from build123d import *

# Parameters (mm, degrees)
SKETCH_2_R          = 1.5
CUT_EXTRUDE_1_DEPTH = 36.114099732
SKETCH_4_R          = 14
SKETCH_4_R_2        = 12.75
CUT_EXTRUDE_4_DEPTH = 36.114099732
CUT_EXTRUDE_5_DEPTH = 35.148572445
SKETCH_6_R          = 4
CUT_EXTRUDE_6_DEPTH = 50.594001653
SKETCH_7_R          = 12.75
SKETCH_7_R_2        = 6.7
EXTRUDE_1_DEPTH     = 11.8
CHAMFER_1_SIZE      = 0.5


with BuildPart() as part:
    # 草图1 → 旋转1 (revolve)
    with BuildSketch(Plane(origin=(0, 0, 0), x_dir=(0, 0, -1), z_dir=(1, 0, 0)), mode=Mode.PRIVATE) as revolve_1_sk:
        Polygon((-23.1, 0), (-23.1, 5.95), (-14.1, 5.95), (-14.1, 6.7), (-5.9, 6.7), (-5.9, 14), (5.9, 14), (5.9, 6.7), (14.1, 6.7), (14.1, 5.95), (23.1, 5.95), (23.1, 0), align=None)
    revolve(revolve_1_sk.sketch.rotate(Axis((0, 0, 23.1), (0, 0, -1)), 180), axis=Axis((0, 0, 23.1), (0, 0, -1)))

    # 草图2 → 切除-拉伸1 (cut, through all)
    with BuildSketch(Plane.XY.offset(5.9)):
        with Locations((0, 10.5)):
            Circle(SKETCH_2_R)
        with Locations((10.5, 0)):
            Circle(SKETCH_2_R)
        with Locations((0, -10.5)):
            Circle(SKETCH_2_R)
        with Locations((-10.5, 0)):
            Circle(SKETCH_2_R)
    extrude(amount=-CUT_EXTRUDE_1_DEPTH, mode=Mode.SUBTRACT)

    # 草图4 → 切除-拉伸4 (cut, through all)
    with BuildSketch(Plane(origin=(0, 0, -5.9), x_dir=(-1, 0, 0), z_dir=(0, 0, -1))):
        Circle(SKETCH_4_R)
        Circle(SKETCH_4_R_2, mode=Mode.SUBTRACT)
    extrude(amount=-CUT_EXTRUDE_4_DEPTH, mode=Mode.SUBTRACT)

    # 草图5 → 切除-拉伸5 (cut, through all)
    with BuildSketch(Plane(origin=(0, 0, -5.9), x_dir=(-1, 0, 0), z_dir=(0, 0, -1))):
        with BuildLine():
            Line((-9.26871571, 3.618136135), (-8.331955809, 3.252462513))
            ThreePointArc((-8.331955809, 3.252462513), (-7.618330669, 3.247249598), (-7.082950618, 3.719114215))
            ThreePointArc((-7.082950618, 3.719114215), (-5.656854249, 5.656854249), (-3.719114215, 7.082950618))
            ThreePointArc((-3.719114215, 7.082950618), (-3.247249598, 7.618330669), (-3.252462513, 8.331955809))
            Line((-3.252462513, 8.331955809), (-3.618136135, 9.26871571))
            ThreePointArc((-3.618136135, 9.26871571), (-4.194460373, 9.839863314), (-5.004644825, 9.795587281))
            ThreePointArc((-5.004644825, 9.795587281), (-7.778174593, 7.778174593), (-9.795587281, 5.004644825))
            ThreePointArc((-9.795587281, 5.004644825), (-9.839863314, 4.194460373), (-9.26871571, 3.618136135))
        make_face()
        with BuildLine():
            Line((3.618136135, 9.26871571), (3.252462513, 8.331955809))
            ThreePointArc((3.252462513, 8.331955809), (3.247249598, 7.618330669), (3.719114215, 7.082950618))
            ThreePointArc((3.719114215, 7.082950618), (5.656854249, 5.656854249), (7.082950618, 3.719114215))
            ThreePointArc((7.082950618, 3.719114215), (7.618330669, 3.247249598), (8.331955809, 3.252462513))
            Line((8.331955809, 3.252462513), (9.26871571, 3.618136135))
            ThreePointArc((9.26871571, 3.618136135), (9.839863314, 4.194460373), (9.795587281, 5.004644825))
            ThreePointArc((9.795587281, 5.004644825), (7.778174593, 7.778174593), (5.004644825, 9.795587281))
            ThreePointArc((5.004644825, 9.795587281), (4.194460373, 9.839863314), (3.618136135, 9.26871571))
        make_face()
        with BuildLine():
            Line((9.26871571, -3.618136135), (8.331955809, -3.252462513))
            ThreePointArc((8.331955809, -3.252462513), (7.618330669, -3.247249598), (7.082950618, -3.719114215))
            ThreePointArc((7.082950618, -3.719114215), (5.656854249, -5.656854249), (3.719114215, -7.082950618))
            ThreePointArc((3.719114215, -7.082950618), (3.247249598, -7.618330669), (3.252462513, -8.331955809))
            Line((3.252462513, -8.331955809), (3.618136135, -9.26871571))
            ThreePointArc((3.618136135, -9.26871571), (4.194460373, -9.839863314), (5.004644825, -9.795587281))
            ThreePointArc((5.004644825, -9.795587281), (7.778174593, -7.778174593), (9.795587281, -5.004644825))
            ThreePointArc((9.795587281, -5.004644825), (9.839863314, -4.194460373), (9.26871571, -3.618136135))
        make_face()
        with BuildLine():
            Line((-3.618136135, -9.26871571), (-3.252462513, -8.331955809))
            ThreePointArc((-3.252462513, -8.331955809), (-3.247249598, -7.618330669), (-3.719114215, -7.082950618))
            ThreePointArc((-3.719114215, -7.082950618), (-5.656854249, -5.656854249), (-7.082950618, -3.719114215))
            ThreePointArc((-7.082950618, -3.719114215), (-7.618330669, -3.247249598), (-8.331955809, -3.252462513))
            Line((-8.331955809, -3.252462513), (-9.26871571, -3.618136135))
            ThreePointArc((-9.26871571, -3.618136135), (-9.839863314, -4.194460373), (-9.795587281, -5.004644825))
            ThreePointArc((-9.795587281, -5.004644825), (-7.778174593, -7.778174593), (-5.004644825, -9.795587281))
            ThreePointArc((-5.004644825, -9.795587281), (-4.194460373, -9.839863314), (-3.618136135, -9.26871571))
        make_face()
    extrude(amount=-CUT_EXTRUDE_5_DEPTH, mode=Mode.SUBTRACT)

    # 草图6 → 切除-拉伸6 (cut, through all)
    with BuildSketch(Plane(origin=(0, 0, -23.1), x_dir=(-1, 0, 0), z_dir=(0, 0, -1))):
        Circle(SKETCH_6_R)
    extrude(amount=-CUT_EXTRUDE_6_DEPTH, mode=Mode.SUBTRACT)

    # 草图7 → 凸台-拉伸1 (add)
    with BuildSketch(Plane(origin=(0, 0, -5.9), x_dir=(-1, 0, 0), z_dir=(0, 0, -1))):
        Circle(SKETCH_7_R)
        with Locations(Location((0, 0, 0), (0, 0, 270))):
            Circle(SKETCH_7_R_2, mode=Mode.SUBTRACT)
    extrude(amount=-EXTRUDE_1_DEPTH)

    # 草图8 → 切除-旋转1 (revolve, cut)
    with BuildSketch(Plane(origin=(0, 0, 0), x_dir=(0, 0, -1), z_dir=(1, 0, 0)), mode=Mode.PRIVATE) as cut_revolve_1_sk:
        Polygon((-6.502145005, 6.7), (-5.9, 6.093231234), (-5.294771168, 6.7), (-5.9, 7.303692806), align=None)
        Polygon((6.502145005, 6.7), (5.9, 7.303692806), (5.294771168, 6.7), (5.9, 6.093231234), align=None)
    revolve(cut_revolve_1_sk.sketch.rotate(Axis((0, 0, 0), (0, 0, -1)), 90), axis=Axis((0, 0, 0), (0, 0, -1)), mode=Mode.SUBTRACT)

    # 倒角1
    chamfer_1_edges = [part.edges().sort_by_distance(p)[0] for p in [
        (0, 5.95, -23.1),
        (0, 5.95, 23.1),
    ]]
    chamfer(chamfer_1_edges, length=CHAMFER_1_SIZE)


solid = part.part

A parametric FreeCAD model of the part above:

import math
import FreeCAD as App
import Part
import Sketcher
from FreeCAD import Vector
Q = App.Units.Quantity


def edges_at(feature, points):
    """Names of the edges that pass closest to the given points."""
    edges = feature.Shape.Edges
    near = lambda p: min(range(len(edges)), key=lambda i: edges[i].distToShape(Part.Vertex(*p))[0])
    return sorted({f"Edge{near(p) + 1}" for p in points})

doc = App.newDocument("Part")
body = doc.addObject("PartDesign::Body", "Body")

sketch1 = doc.addObject("Sketcher::SketchObject", "Sketch")
body.addObject(sketch1)
sketch1.AttachmentSupport = (doc.YZ_Plane, [""])
sketch1.MapMode = "FlatFace"
sketch1.addGeometry(Part.LineSegment(Vector(6, 23.1, 0), Vector(0, 23.1, 0)), False)
sketch1.addGeometry(Part.LineSegment(Vector(0, 23.1, 0), Vector(0, -23.1, 0)), False)
sketch1.addGeometry(Part.LineSegment(Vector(0, -23.1, 0), Vector(6, -23.1, 0)), False)
sketch1.addGeometry(Part.LineSegment(Vector(6, -23.1, 0), Vector(6, -14.1, 0)), False)
sketch1.addGeometry(Part.LineSegment(Vector(6, -14.1, 0), Vector(6.7, -14.1, 0)), False)
sketch1.addGeometry(Part.LineSegment(Vector(6.7, -14.1, 0), Vector(6.7, -5.9, 0)), False)
sketch1.addGeometry(Part.LineSegment(Vector(6.7, -5.9, 0), Vector(14, -5.9, 0)), False)
sketch1.addGeometry(Part.LineSegment(Vector(14, -5.9, 0), Vector(14, 5.9, 0)), False)
sketch1.addGeometry(Part.LineSegment(Vector(14, 5.9, 0), Vector(6.7, 5.9, 0)), False)
sketch1.addGeometry(Part.LineSegment(Vector(6.7, 5.9, 0), Vector(6.7, 14.1, 0)), False)
sketch1.addGeometry(Part.LineSegment(Vector(6.7, 14.1, 0), Vector(6, 14.1, 0)), False)
sketch1.addGeometry(Part.LineSegment(Vector(6, 14.1, 0), Vector(6, 23.1, 0)), False)
sketch1.addConstraint(Sketcher.Constraint("Coincident", 0, 2, 1, 1))
sketch1.addConstraint(Sketcher.Constraint("Coincident", 1, 2, 2, 1))
sketch1.addConstraint(Sketcher.Constraint("Coincident", 2, 2, 3, 1))
sketch1.addConstraint(Sketcher.Constraint("Coincident", 3, 2, 4, 1))
sketch1.addConstraint(Sketcher.Constraint("Coincident", 4, 2, 5, 1))
sketch1.addConstraint(Sketcher.Constraint("Coincident", 5, 2, 6, 1))
sketch1.addConstraint(Sketcher.Constraint("Coincident", 6, 2, 7, 1))
sketch1.addConstraint(Sketcher.Constraint("Coincident", 7, 2, 8, 1))
sketch1.addConstraint(Sketcher.Constraint("Coincident", 8, 2, 9, 1))
sketch1.addConstraint(Sketcher.Constraint("Coincident", 9, 2, 10, 1))
sketch1.addConstraint(Sketcher.Constraint("Coincident", 10, 2, 11, 1))
sketch1.addConstraint(Sketcher.Constraint("Coincident", 11, 2, 0, 1))
sketch1.addConstraint(Sketcher.Constraint("Horizontal", 0))
sketch1.addConstraint(Sketcher.Constraint("Vertical", 1))
sketch1.addConstraint(Sketcher.Constraint("Horizontal", 2))
sketch1.addConstraint(Sketcher.Constraint("Vertical", 3))
sketch1.addConstraint(Sketcher.Constraint("Horizontal", 4))
sketch1.addConstraint(Sketcher.Constraint("Vertical", 5))
sketch1.addConstraint(Sketcher.Constraint("Horizontal", 6))
sketch1.addConstraint(Sketcher.Constraint("Vertical", 7))
sketch1.addConstraint(Sketcher.Constraint("Horizontal", 8))
sketch1.addConstraint(Sketcher.Constraint("Vertical", 9))
sketch1.addConstraint(Sketcher.Constraint("Horizontal", 10))
sketch1.addConstraint(Sketcher.Constraint("Vertical", 11))
sketch1.addConstraint(Sketcher.Constraint("Symmetric", 0, 2, 1, 2, -1, 1))
sketch1.addConstraint(Sketcher.Constraint("Symmetric", 5, 2, 8, 2, -1))
sketch1.addConstraint(Sketcher.Constraint("Symmetric", 3, 2, 10, 2, -1))
sketch1.addConstraint(Sketcher.Constraint("DistanceY", 3, 1, 3, 2, Q("9 mm")))
sketch1.addConstraint(Sketcher.Constraint("DistanceX", 6, 1, 6, 2, Q("7.3 mm")))
sketch1.addConstraint(Sketcher.Constraint("DistanceY", 1, 2, 1, 1, Q("46.2 mm")))
sketch1.addConstraint(Sketcher.Constraint("DistanceY", 5, 1, 5, 2, Q("8.2 mm")))
sketch1.addConstraint(Sketcher.Constraint("DistanceX", -1, 1, 6, 2, Q("14 mm")))
sketch1.addConstraint(Sketcher.Constraint("DistanceX", 0, 2, 0, 1, Q("5.95 mm")))
revolution = doc.addObject("PartDesign::Revolution", "Revolution")
body.addObject(revolution)
revolution.Profile = sketch1
revolution.ReferenceAxis = (sketch1, ["V_Axis"])
revolution.Angle = 360

sketch2 = doc.addObject("Sketcher::SketchObject", "Sketch001")
body.addObject(sketch2)
sketch2.AttachmentSupport = (doc.XY_Plane, [""])
sketch2.MapMode = "FlatFace"
sketch2.AttachmentOffset = App.Placement(Vector(0, 0, 5.9), App.Rotation())
sketch2.addGeometry(Part.Circle(Vector(0, 10.5, 0), Vector(0, 0, 1), 1.5), False)
sketch2.addGeometry(Part.Circle(Vector(10.5, 0, 0), Vector(0, 0, 1), 1.5), False)
sketch2.addGeometry(Part.Circle(Vector(0, -10.5, 0), Vector(0, 0, 1), 1.5), False)
sketch2.addGeometry(Part.Circle(Vector(-10.5, 0, 0), Vector(0, 0, 1), 1.5), False)
sketch2.addConstraint(Sketcher.Constraint("Equal", 0, 1))
sketch2.addConstraint(Sketcher.Constraint("Equal", 1, 2))
sketch2.addConstraint(Sketcher.Constraint("Equal", 2, 3))
sketch2.addConstraint(Sketcher.Constraint("Symmetric", 0, 3, 2, 3, -1, 1))
sketch2.addConstraint(Sketcher.Constraint("Symmetric", 1, 3, 3, 3, -1, 1))
sketch2.addConstraint(Sketcher.Constraint("PointOnObject", 0, 3, -2))
sketch2.addConstraint(Sketcher.Constraint("PointOnObject", 1, 3, -1))
sketch2.addConstraint(Sketcher.Constraint("Diameter", 0, Q("3 mm")))
sketch2.addConstraint(Sketcher.Constraint("DistanceY", 2, 3, 0, 3, Q("21 mm")))
sketch2.addConstraint(Sketcher.Constraint("DistanceX", 3, 3, 1, 3, Q("21 mm")))
pocket1 = doc.addObject("PartDesign::Pocket", "Pocket")
body.addObject(pocket1)
pocket1.Profile = sketch2
pocket1.Type = "ThroughAll"

sketch3 = doc.addObject("Sketcher::SketchObject", "Sketch002")
body.addObject(sketch3)
sketch3.AttachmentSupport = (doc.XY_Plane, [""])
sketch3.MapMode = "FlatFace"
sketch3.AttachmentOffset = App.Placement(Vector(0, 0, -5.9), App.Rotation())
sketch3.addGeometry(Part.Circle(Vector(0, 0, 0), Vector(0, 0, 1), 14), False)
sketch3.addGeometry(Part.Circle(Vector(0, 0, 0), Vector(0, 0, 1), 13), False)
sketch3.addConstraint(Sketcher.Constraint("Coincident", 0, 3, -1, 1))
sketch3.addConstraint(Sketcher.Constraint("Coincident", 1, 3, -1, 1))
sketch3.addConstraint(Sketcher.Constraint("Diameter", 0, Q("28 mm")))
sketch3.addConstraint(Sketcher.Constraint("Diameter", 1, Q("25.5 mm")))
pocket2 = doc.addObject("PartDesign::Pocket", "Pocket001")
body.addObject(pocket2)
pocket2.Profile = sketch3
pocket2.Type = "ThroughAll"
pocket2.Reversed = True

sketch4 = doc.addObject("Sketcher::SketchObject", "Sketch003")
body.addObject(sketch4)
sketch4.AttachmentSupport = (doc.XY_Plane, [""])
sketch4.MapMode = "FlatFace"
sketch4.AttachmentOffset = App.Placement(Vector(0, 0, -5.9), App.Rotation())
sketch4.addGeometry(Part.LineSegment(Vector(9.3, 3.6, 0), Vector(8.3, 3.3, 0)), False)
sketch4.addGeometry(Part.ArcOfCircle(Part.Circle(Vector(8, 4.2, 0), Vector(0, 0, 1), 1), math.radians(-152), math.radians(-69)), False)
sketch4.addGeometry(Part.ArcOfCircle(Part.Circle(Vector(0, 0, 0), Vector(0, 0, 1), 8), math.radians(28), math.radians(62)), False)
sketch4.addGeometry(Part.ArcOfCircle(Part.Circle(Vector(4.2, 8, 0), Vector(0, 0, 1), 1), math.radians(159), math.radians(242)), False)
sketch4.addGeometry(Part.LineSegment(Vector(3.3, 8.3, 0), Vector(3.6, 9.3, 0)), False)
sketch4.addGeometry(Part.ArcOfCircle(Part.Circle(Vector(4.5, 8.9, 0), Vector(0, 0, 1), 1), math.radians(63), math.radians(159)), False)
sketch4.addGeometry(Part.ArcOfCircle(Part.Circle(Vector(0, 0, 0), Vector(0, 0, 1), 11), math.radians(27), math.radians(63)), False)
sketch4.addGeometry(Part.ArcOfCircle(Part.Circle(Vector(8.9, 4.5, 0), Vector(0, 0, 1), 1), math.radians(-69), math.radians(27)), False)
sketch4.addGeometry(Part.LineSegment(Vector(-3.6, 9.3, 0), Vector(-3.3, 8.3, 0)), False)
sketch4.addGeometry(Part.ArcOfCircle(Part.Circle(Vector(-4.2, 8, 0), Vector(0, 0, 1), 1), math.radians(-62), math.radians(21)), False)
sketch4.addGeometry(Part.ArcOfCircle(Part.Circle(Vector(0, 0, 0), Vector(0, 0, 1), 8), math.radians(118), math.radians(152)), False)
sketch4.addGeometry(Part.ArcOfCircle(Part.Circle(Vector(-8, 4.2, 0), Vector(0, 0, 1), 1), math.radians(-111), math.radians(-28)), False)
sketch4.addGeometry(Part.LineSegment(Vector(-8.3, 3.3, 0), Vector(-9.3, 3.6, 0)), False)
sketch4.addGeometry(Part.ArcOfCircle(Part.Circle(Vector(-8.9, 4.5, 0), Vector(0, 0, 1), 1), math.radians(153), math.radians(249)), False)
sketch4.addGeometry(Part.ArcOfCircle(Part.Circle(Vector(0, 0, 0), Vector(0, 0, 1), 11), math.radians(117), math.radians(153)), False)
sketch4.addGeometry(Part.ArcOfCircle(Part.Circle(Vector(-4.5, 8.9, 0), Vector(0, 0, 1), 1), math.radians(21), math.radians(117)), False)
sketch4.addGeometry(Part.LineSegment(Vector(-9.3, -3.6, 0), Vector(-8.3, -3.3, 0)), False)
sketch4.addGeometry(Part.ArcOfCircle(Part.Circle(Vector(-8, -4.2, 0), Vector(0, 0, 1), 1), math.radians(28), math.radians(111)), False)
sketch4.addGeometry(Part.ArcOfCircle(Part.Circle(Vector(0, 0, 0), Vector(0, 0, 1), 8), math.radians(-152), math.radians(-118)), False)
sketch4.addGeometry(Part.ArcOfCircle(Part.Circle(Vector(-4.2, -8, 0), Vector(0, 0, 1), 1), math.radians(-21), math.radians(62)), False)
sketch4.addGeometry(Part.LineSegment(Vector(-3.3, -8.3, 0), Vector(-3.6, -9.3, 0)), False)
sketch4.addGeometry(Part.ArcOfCircle(Part.Circle(Vector(-4.5, -8.9, 0), Vector(0, 0, 1), 1), math.radians(-117), math.radians(-21)), False)
sketch4.addGeometry(Part.ArcOfCircle(Part.Circle(Vector(0, 0, 0), Vector(0, 0, 1), 11), math.radians(-153), math.radians(-117)), False)
sketch4.addGeometry(Part.ArcOfCircle(Part.Circle(Vector(-8.9, -4.5, 0), Vector(0, 0, 1), 1), math.radians(111), math.radians(207)), False)
sketch4.addGeometry(Part.LineSegment(Vector(3.6, -9.3, 0), Vector(3.3, -8.3, 0)), False)
sketch4.addGeometry(Part.ArcOfCircle(Part.Circle(Vector(4.2, -8, 0), Vector(0, 0, 1), 1), math.radians(118), math.radians(201)), False)
sketch4.addGeometry(Part.ArcOfCircle(Part.Circle(Vector(0, 0, 0), Vector(0, 0, 1), 8), math.radians(-62), math.radians(-28)), False)
sketch4.addGeometry(Part.ArcOfCircle(Part.Circle(Vector(8, -4.2, 0), Vector(0, 0, 1), 1), math.radians(69), math.radians(152)), False)
sketch4.addGeometry(Part.LineSegment(Vector(8.3, -3.3, 0), Vector(9.3, -3.6, 0)), False)
sketch4.addGeometry(Part.ArcOfCircle(Part.Circle(Vector(8.9, -4.5, 0), Vector(0, 0, 1), 1), math.radians(-27), math.radians(69)), False)
sketch4.addGeometry(Part.ArcOfCircle(Part.Circle(Vector(0, 0, 0), Vector(0, 0, 1), 11), math.radians(-63), math.radians(-27)), False)
sketch4.addGeometry(Part.ArcOfCircle(Part.Circle(Vector(4.5, -8.9, 0), Vector(0, 0, 1), 1), math.radians(-159), math.radians(-63)), False)
sketch4.addConstraint(Sketcher.Constraint("Tangent", 0, 2, 1, 2))
sketch4.addConstraint(Sketcher.Constraint("Tangent", 1, 1, 2, 1))
sketch4.addConstraint(Sketcher.Constraint("Tangent", 2, 2, 3, 2))
sketch4.addConstraint(Sketcher.Constraint("Tangent", 3, 1, 4, 1))
sketch4.addConstraint(Sketcher.Constraint("Tangent", 4, 2, 5, 2))
sketch4.addConstraint(Sketcher.Constraint("Tangent", 5, 1, 6, 2))
sketch4.addConstraint(Sketcher.Constraint("Tangent", 6, 1, 7, 2))
sketch4.addConstraint(Sketcher.Constraint("Tangent", 7, 1, 0, 1))
sketch4.addConstraint(Sketcher.Constraint("Tangent", 8, 2, 9, 2))
sketch4.addConstraint(Sketcher.Constraint("Tangent", 9, 1, 10, 1))
sketch4.addConstraint(Sketcher.Constraint("Tangent", 10, 2, 11, 2))
sketch4.addConstraint(Sketcher.Constraint("Tangent", 11, 1, 12, 1))
sketch4.addConstraint(Sketcher.Constraint("Tangent", 12, 2, 13, 2))
sketch4.addConstraint(Sketcher.Constraint("Tangent", 13, 1, 14, 2))
sketch4.addConstraint(Sketcher.Constraint("Tangent", 14, 1, 15, 2))
sketch4.addConstraint(Sketcher.Constraint("Tangent", 15, 1, 8, 1))
sketch4.addConstraint(Sketcher.Constraint("Tangent", 16, 2, 17, 2))
sketch4.addConstraint(Sketcher.Constraint("Tangent", 17, 1, 18, 1))
sketch4.addConstraint(Sketcher.Constraint("Tangent", 18, 2, 19, 2))
sketch4.addConstraint(Sketcher.Constraint("Tangent", 19, 1, 20, 1))
sketch4.addConstraint(Sketcher.Constraint("Tangent", 20, 2, 21, 2))
sketch4.addConstraint(Sketcher.Constraint("Tangent", 21, 1, 22, 2))
sketch4.addConstraint(Sketcher.Constraint("Tangent", 22, 1, 23, 2))
sketch4.addConstraint(Sketcher.Constraint("Tangent", 23, 1, 16, 1))
sketch4.addConstraint(Sketcher.Constraint("Tangent", 24, 2, 25, 2))
sketch4.addConstraint(Sketcher.Constraint("Tangent", 25, 1, 26, 1))
sketch4.addConstraint(Sketcher.Constraint("Tangent", 26, 2, 27, 2))
sketch4.addConstraint(Sketcher.Constraint("Tangent", 27, 1, 28, 1))
sketch4.addConstraint(Sketcher.Constraint("Tangent", 28, 2, 29, 2))
sketch4.addConstraint(Sketcher.Constraint("Tangent", 29, 1, 30, 2))
sketch4.addConstraint(Sketcher.Constraint("Tangent", 30, 1, 31, 2))
sketch4.addConstraint(Sketcher.Constraint("Tangent", 31, 1, 24, 1))
sketch4.addConstraint(Sketcher.Constraint("Coincident", 2, 3, -1, 1))
sketch4.addConstraint(Sketcher.Constraint("Coincident", 6, 3, -1, 1))
sketch4.addConstraint(Sketcher.Constraint("Coincident", 10, 3, -1, 1))
sketch4.addConstraint(Sketcher.Constraint("Coincident", 14, 3, -1, 1))
sketch4.addConstraint(Sketcher.Constraint("Coincident", 18, 3, -1, 1))
sketch4.addConstraint(Sketcher.Constraint("Coincident", 22, 3, -1, 1))
sketch4.addConstraint(Sketcher.Constraint("Coincident", 26, 3, -1, 1))
sketch4.addConstraint(Sketcher.Constraint("Coincident", 30, 3, -1, 1))
sketch4.addConstraint(Sketcher.Constraint("Equal", 1, 3))
sketch4.addConstraint(Sketcher.Constraint("Equal", 3, 5))
sketch4.addConstraint(Sketcher.Constraint("Equal", 5, 7))
sketch4.addConstraint(Sketcher.Constraint("Equal", 7, 9))
sketch4.addConstraint(Sketcher.Constraint("Equal", 2, 10))
sketch4.addConstraint(Sketcher.Constraint("Equal", 9, 11))
sketch4.addConstraint(Sketcher.Constraint("Equal", 11, 13))
sketch4.addConstraint(Sketcher.Constraint("Equal", 6, 14))
sketch4.addConstraint(Sketcher.Constraint("Equal", 13, 15))
sketch4.addConstraint(Sketcher.Constraint("Equal", 15, 17))
sketch4.addConstraint(Sketcher.Constraint("Equal", 10, 18))
sketch4.addConstraint(Sketcher.Constraint("Equal", 17, 19))
sketch4.addConstraint(Sketcher.Constraint("Equal", 19, 21))
sketch4.addConstraint(Sketcher.Constraint("Equal", 14, 22))
sketch4.addConstraint(Sketcher.Constraint("Equal", 21, 23))
sketch4.addConstraint(Sketcher.Constraint("Equal", 23, 25))
sketch4.addConstraint(Sketcher.Constraint("Equal", 18, 26))
sketch4.addConstraint(Sketcher.Constraint("Equal", 25, 27))
sketch4.addConstraint(Sketcher.Constraint("Equal", 27, 29))
sketch4.addConstraint(Sketcher.Constraint("Equal", 22, 30))
sketch4.addConstraint(Sketcher.Constraint("Equal", 29, 31))
sketch4.addConstraint(Sketcher.Constraint("Symmetric", 0, 2, 16, 2, -1, 1))
sketch4.addConstraint(Sketcher.Constraint("Symmetric", 3, 1, 19, 1, -1, 1))
sketch4.addConstraint(Sketcher.Constraint("Symmetric", 8, 2, 24, 2, -1, 1))
sketch4.addConstraint(Sketcher.Constraint("Symmetric", 11, 1, 27, 1, -1, 1))
sketch4.addConstraint(Sketcher.Constraint("Symmetric", 3, 1, 8, 2, -2))
sketch4.addConstraint(Sketcher.Constraint("Symmetric", 0, 2, 11, 1, -2))
sketch4.addConstraint(Sketcher.Constraint("Perpendicular", 0, 8))
sketch4.addConstraint(Sketcher.Constraint("Radius", 1, Q("1 mm")))
sketch4.addConstraint(Sketcher.Constraint("Radius", 2, Q("8 mm")))
sketch4.addConstraint(Sketcher.Constraint("Radius", 6, Q("11 mm")))
sketch4.addConstraint(Sketcher.Constraint("DistanceY", 1, 1, 4, 2, Q("5.549601 mm")))
sketch4.addConstraint(Sketcher.Constraint("DistanceX", 12, 2, 9, 1, Q("5.549601 mm")))
sketch4.addConstraint(Sketcher.Constraint("DistanceX", -1, 1, 1, 3, Q("7.968319 mm")))
pocket3 = doc.addObject("PartDesign::Pocket", "Pocket002")
body.addObject(pocket3)
pocket3.Profile = sketch4
pocket3.Type = "ThroughAll"
pocket3.Reversed = True

sketch5 = doc.addObject("Sketcher::SketchObject", "Sketch004")
body.addObject(sketch5)
sketch5.AttachmentSupport = (doc.XY_Plane, [""])
sketch5.MapMode = "FlatFace"
sketch5.AttachmentOffset = App.Placement(Vector(0, 0, -23.1), App.Rotation())
sketch5.addGeometry(Part.Circle(Vector(0, 0, 0), Vector(0, 0, 1), 4), False)
sketch5.addConstraint(Sketcher.Constraint("Coincident", 0, 3, -1, 1))
sketch5.addConstraint(Sketcher.Constraint("Diameter", 0, Q("8 mm")))
pocket4 = doc.addObject("PartDesign::Pocket", "Pocket003")
body.addObject(pocket4)
pocket4.Profile = sketch5
pocket4.Type = "ThroughAll"
pocket4.Reversed = True

sketch6 = doc.addObject("Sketcher::SketchObject", "Sketch005")
body.addObject(sketch6)
sketch6.AttachmentSupport = (doc.XY_Plane, [""])
sketch6.MapMode = "FlatFace"
sketch6.AttachmentOffset = App.Placement(Vector(0, 0, -5.9), App.Rotation())
sketch6.addGeometry(Part.Circle(Vector(0, 0, 0), Vector(0, 0, 1), 13), False)
sketch6.addGeometry(Part.Circle(Vector(0, 0, 0), Vector(0, 0, 1), 7), False)
sketch6.addConstraint(Sketcher.Constraint("Coincident", 0, 3, -1, 1))
sketch6.addConstraint(Sketcher.Constraint("Coincident", 1, 3, -1, 1))
sketch6.addConstraint(Sketcher.Constraint("Diameter", 0, Q("25.5 mm")))
sketch6.addConstraint(Sketcher.Constraint("Diameter", 1, Q("13.4 mm")))
pad1 = doc.addObject("PartDesign::Pad", "Pad")
body.addObject(pad1)
pad1.Profile = sketch6
pad1.Length = 11.8

sketch7 = doc.addObject("Sketcher::SketchObject", "Sketch006")
body.addObject(sketch7)
sketch7.AttachmentSupport = (doc.YZ_Plane, [""])
sketch7.MapMode = "FlatFace"
sketch7.addGeometry(Part.LineSegment(Vector(6.7, 6.5, 0), Vector(6.1, 5.9, 0)), False)
sketch7.addGeometry(Part.LineSegment(Vector(6.1, 5.9, 0), Vector(6.7, 5.3, 0)), False)
sketch7.addGeometry(Part.LineSegment(Vector(6.7, 5.3, 0), Vector(7.3, 5.9, 0)), False)
sketch7.addGeometry(Part.LineSegment(Vector(7.3, 5.9, 0), Vector(6.7, 6.5, 0)), False)
sketch7.addGeometry(Part.LineSegment(Vector(6.7, -6.5, 0), Vector(7.3, -5.9, 0)), False)
sketch7.addGeometry(Part.LineSegment(Vector(7.3, -5.9, 0), Vector(6.7, -5.3, 0)), False)
sketch7.addGeometry(Part.LineSegment(Vector(6.7, -5.3, 0), Vector(6.1, -5.9, 0)), False)
sketch7.addGeometry(Part.LineSegment(Vector(6.1, -5.9, 0), Vector(6.7, -6.5, 0)), False)
sketch7.addConstraint(Sketcher.Constraint("Coincident", 0, 2, 1, 1))
sketch7.addConstraint(Sketcher.Constraint("Coincident", 1, 2, 2, 1))
sketch7.addConstraint(Sketcher.Constraint("Coincident", 2, 2, 3, 1))
sketch7.addConstraint(Sketcher.Constraint("Coincident", 3, 2, 0, 1))
sketch7.addConstraint(Sketcher.Constraint("Coincident", 4, 2, 5, 1))
sketch7.addConstraint(Sketcher.Constraint("Coincident", 5, 2, 6, 1))
sketch7.addConstraint(Sketcher.Constraint("Coincident", 6, 2, 7, 1))
sketch7.addConstraint(Sketcher.Constraint("Coincident", 7, 2, 4, 1))
sketch7.addConstraint(Sketcher.Constraint("Symmetric", 2, 2, 4, 2, -1))
sketch7.addConstraint(Sketcher.Constraint("Symmetric", 1, 2, 5, 2, -1))
sketch7.addConstraint(Sketcher.Constraint("Symmetric", 0, 2, 6, 2, -1))
sketch7.addConstraint(Sketcher.Constraint("Symmetric", 3, 2, 7, 2, -1))
sketch7.addConstraint(Sketcher.Constraint("Perpendicular", 1, 2))
sketch7.addConstraint(Sketcher.Constraint("Horizontal", 0, 2, 2, 2))
sketch7.addConstraint(Sketcher.Constraint("Vertical", 1, 2, 3, 2))
sketch7.addConstraint(Sketcher.Constraint("Equal", 0, 2))
sketch7.addConstraint(Sketcher.Constraint("DistanceY", -1, 1, 0, 2, Q("5.9 mm")))
sketch7.addConstraint(Sketcher.Constraint("DistanceX", -1, 1, 1, 2, Q("6.7 mm")))
sketch7.addConstraint(Sketcher.Constraint("DistanceX", -1, 1, 0, 2, Q("6.093231 mm")))
sketch7.addConstraint(Sketcher.Constraint("DistanceY", -1, 1, 1, 2, Q("5.294771 mm")))
groove = doc.addObject("PartDesign::Groove", "Groove")
body.addObject(groove)
groove.Profile = sketch7
groove.ReferenceAxis = (sketch7, ["V_Axis"])
groove.Angle = 360
doc.recompute()

chamfer = doc.addObject("PartDesign::Chamfer", "Chamfer")
body.addObject(chamfer)
chamfer.Base = (groove, edges_at(groove, [(0, 5.95, -23.1), (0, 5.95, 23.1)]))
chamfer.Size = 0.5

doc.recompute()
